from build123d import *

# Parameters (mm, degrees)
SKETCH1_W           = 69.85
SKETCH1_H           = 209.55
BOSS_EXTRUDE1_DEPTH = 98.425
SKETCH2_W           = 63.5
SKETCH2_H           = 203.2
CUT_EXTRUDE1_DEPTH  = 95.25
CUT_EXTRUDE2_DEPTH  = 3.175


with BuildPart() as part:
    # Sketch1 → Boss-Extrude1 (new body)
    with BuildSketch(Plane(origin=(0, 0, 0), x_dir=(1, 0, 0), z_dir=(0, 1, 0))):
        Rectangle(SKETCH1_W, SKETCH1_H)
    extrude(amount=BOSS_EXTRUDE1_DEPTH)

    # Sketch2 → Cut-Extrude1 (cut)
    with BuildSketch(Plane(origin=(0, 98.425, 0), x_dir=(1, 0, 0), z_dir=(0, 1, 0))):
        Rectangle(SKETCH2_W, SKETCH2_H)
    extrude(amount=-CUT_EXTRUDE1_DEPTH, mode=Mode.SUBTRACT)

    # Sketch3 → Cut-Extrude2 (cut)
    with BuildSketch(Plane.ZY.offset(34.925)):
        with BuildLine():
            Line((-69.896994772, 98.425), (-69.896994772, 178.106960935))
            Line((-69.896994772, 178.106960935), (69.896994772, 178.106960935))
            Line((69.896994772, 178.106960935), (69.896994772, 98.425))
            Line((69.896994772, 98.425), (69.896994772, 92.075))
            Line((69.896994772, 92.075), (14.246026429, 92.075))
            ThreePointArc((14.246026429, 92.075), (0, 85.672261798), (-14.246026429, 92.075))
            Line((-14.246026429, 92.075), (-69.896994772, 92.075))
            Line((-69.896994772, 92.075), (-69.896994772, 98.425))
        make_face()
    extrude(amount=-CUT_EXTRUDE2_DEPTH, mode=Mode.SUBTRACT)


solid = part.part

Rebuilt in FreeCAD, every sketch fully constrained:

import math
import FreeCAD as App
import Part
import Sketcher

V = App.Vector
Q = App.Units.Quantity


def add_polygon(sketch, points):
    """Adds a closed chain of lines whose ends are joined by coincident constraints."""
    first, n = sketch.GeometryCount, len(points)
    for a, b in zip(points, points[1:] + points[:1]):
        sketch.addGeometry(Part.LineSegment(App.Vector(*a, 0), App.Vector(*b, 0)), False)
    for i in range(n):
        sketch.addConstraint(Sketcher.Constraint("Coincident", first + i, 2, first + (i + 1) % n, 1))

doc = App.newDocument("Part")
body = doc.addObject("PartDesign::Body", "Body")

# Sketch on XZ plane
sketch1 = body.newObject("Sketcher::SketchObject", "Sketch")
sketch1.AttachmentSupport = (doc.getObject("XZ_Plane"), [""])
sketch1.MapMode = "FlatFace"
add_polygon(sketch1, [(-34.925, -104.775), (-34.925, 104.775), (34.925, 104.775), (34.925, -104.775)])  # lines 0-3
sketch1.addConstraint([
    Sketcher.Constraint("Vertical", 0),
    Sketcher.Constraint("Horizontal", 1),
    Sketcher.Constraint("Vertical", 2),
    Sketcher.Constraint("Horizontal", 3),
    Sketcher.Constraint("Symmetric", 0, 2, 2, 2, -1, 1),
    Sketcher.Constraint("DistanceX", 1, 1, 1, 2, Q("2.75 in")),
    Sketcher.Constraint("DistanceY", 0, 1, 0, 2, Q("8.25 in")),
])
pad1 = body.newObject("PartDesign::Pad", "Pad")
pad1.Profile = sketch1
pad1.Length = Q("3.875 in")
pad1.Reversed = True

# Sketch on XZ plane
sketch2 = body.newObject("Sketcher::SketchObject", "Sketch001")
sketch2.AttachmentSupport = (doc.getObject("XZ_Plane"), [""])
sketch2.MapMode = "FlatFace"
sketch2.AttachmentOffset = App.Placement(V(0, 0, -3.875 * 25.4), App.Rotation())
add_polygon(sketch2, [(-31.75, -101.6), (-31.75, 101.6), (31.75, 101.6), (31.75, -101.6)])  # lines 0-3
sketch2.addConstraint([
    Sketcher.Constraint("Vertical", 0),
    Sketcher.Constraint("Horizontal", 1),
    Sketcher.Constraint("Vertical", 2),
    Sketcher.Constraint("Horizontal", 3),
    Sketcher.Constraint("Symmetric", 0, 2, 2, 2, -1, 1),
    Sketcher.Constraint("DistanceY", 0, 1, 0, 2, Q("8 in")),
    Sketcher.Constraint("DistanceX", 1, 1, 1, 2, Q("2.5 in")),
])
pocket1 = body.newObject("PartDesign::Pocket", "Pocket")
pocket1.Profile = sketch2
pocket1.Length = Q("3.75 in")
pocket1.Reversed = True

# Sketch on YZ plane
sketch3 = body.newObject("Sketcher::SketchObject", "Sketch002")
sketch3.AttachmentSupport = (doc.getObject("YZ_Plane"), [""])
sketch3.MapMode = "FlatFace"
sketch3.AttachmentOffset = App.Placement(V(0, 0, -1.375 * 25.4), App.Rotation())
sketch3.addGeometry([
    Part.LineSegment(V(178.106961, 69.896995, 0), V(178.106961, -69.896995, 0)),  # 0
    Part.LineSegment(V(178.106961, -69.896995, 0), V(92.075, -69.896995, 0)),  # 1
    Part.LineSegment(V(92.075, -69.896995, 0), V(92.075, -14.246026, 0)),  # 2
    Part.ArcOfCircle(Part.Circle(V(104.722262, 0, 0), V(0, 0, 1), 19.05), math.radians(131.597858), math.radians(228.402142)),  # 3
    Part.LineSegment(V(92.075, 14.246026, 0), V(92.075, 69.896995, 0)),  # 4
    Part.LineSegment(V(92.075, 69.896995, 0), V(178.106961, 69.896995, 0)),  # 5
], False)
sketch3.addConstraint([
    Sketcher.Constraint("Coincident", 0, 2, 1, 1),
    Sketcher.Constraint("Coincident", 1, 2, 2, 1),
    Sketcher.Constraint("Coincident", 2, 2, 3, 2),
    Sketcher.Constraint("Coincident", 3, 1, 4, 1),
    Sketcher.Constraint("Coincident", 4, 2, 5, 1),
    Sketcher.Constraint("Coincident", 5, 2, 0, 1),
    Sketcher.Constraint("Vertical", 0),
    Sketcher.Constraint("Horizontal", 1),
    Sketcher.Constraint("Vertical", 2),
    Sketcher.Constraint("Vertical", 4),
    Sketcher.Constraint("Horizontal", 5),
    Sketcher.Constraint("Symmetric", 2, 2, 3, 1, -1),
    Sketcher.Constraint("Equal", 2, 4),
    Sketcher.Constraint("Radius", 3, Q("0.75 in")),
    Sketcher.Constraint("DistanceX", -1, 1, 1, 2, Q("3.625 in")),
    Sketcher.Constraint("DistanceX", 1, 2, 1, 1, 86.031961),
    Sketcher.Constraint("DistanceY", 0, 2, 0, 1, 139.79399),
    Sketcher.Constraint("DistanceY", 2, 1, 2, 2, 55.650968),
])
pocket2 = body.newObject("PartDesign::Pocket", "Pocket001")
pocket2.Profile = sketch3
pocket2.Length = Q("0.125 in")
pocket2.Reversed = True

doc.recompute()
